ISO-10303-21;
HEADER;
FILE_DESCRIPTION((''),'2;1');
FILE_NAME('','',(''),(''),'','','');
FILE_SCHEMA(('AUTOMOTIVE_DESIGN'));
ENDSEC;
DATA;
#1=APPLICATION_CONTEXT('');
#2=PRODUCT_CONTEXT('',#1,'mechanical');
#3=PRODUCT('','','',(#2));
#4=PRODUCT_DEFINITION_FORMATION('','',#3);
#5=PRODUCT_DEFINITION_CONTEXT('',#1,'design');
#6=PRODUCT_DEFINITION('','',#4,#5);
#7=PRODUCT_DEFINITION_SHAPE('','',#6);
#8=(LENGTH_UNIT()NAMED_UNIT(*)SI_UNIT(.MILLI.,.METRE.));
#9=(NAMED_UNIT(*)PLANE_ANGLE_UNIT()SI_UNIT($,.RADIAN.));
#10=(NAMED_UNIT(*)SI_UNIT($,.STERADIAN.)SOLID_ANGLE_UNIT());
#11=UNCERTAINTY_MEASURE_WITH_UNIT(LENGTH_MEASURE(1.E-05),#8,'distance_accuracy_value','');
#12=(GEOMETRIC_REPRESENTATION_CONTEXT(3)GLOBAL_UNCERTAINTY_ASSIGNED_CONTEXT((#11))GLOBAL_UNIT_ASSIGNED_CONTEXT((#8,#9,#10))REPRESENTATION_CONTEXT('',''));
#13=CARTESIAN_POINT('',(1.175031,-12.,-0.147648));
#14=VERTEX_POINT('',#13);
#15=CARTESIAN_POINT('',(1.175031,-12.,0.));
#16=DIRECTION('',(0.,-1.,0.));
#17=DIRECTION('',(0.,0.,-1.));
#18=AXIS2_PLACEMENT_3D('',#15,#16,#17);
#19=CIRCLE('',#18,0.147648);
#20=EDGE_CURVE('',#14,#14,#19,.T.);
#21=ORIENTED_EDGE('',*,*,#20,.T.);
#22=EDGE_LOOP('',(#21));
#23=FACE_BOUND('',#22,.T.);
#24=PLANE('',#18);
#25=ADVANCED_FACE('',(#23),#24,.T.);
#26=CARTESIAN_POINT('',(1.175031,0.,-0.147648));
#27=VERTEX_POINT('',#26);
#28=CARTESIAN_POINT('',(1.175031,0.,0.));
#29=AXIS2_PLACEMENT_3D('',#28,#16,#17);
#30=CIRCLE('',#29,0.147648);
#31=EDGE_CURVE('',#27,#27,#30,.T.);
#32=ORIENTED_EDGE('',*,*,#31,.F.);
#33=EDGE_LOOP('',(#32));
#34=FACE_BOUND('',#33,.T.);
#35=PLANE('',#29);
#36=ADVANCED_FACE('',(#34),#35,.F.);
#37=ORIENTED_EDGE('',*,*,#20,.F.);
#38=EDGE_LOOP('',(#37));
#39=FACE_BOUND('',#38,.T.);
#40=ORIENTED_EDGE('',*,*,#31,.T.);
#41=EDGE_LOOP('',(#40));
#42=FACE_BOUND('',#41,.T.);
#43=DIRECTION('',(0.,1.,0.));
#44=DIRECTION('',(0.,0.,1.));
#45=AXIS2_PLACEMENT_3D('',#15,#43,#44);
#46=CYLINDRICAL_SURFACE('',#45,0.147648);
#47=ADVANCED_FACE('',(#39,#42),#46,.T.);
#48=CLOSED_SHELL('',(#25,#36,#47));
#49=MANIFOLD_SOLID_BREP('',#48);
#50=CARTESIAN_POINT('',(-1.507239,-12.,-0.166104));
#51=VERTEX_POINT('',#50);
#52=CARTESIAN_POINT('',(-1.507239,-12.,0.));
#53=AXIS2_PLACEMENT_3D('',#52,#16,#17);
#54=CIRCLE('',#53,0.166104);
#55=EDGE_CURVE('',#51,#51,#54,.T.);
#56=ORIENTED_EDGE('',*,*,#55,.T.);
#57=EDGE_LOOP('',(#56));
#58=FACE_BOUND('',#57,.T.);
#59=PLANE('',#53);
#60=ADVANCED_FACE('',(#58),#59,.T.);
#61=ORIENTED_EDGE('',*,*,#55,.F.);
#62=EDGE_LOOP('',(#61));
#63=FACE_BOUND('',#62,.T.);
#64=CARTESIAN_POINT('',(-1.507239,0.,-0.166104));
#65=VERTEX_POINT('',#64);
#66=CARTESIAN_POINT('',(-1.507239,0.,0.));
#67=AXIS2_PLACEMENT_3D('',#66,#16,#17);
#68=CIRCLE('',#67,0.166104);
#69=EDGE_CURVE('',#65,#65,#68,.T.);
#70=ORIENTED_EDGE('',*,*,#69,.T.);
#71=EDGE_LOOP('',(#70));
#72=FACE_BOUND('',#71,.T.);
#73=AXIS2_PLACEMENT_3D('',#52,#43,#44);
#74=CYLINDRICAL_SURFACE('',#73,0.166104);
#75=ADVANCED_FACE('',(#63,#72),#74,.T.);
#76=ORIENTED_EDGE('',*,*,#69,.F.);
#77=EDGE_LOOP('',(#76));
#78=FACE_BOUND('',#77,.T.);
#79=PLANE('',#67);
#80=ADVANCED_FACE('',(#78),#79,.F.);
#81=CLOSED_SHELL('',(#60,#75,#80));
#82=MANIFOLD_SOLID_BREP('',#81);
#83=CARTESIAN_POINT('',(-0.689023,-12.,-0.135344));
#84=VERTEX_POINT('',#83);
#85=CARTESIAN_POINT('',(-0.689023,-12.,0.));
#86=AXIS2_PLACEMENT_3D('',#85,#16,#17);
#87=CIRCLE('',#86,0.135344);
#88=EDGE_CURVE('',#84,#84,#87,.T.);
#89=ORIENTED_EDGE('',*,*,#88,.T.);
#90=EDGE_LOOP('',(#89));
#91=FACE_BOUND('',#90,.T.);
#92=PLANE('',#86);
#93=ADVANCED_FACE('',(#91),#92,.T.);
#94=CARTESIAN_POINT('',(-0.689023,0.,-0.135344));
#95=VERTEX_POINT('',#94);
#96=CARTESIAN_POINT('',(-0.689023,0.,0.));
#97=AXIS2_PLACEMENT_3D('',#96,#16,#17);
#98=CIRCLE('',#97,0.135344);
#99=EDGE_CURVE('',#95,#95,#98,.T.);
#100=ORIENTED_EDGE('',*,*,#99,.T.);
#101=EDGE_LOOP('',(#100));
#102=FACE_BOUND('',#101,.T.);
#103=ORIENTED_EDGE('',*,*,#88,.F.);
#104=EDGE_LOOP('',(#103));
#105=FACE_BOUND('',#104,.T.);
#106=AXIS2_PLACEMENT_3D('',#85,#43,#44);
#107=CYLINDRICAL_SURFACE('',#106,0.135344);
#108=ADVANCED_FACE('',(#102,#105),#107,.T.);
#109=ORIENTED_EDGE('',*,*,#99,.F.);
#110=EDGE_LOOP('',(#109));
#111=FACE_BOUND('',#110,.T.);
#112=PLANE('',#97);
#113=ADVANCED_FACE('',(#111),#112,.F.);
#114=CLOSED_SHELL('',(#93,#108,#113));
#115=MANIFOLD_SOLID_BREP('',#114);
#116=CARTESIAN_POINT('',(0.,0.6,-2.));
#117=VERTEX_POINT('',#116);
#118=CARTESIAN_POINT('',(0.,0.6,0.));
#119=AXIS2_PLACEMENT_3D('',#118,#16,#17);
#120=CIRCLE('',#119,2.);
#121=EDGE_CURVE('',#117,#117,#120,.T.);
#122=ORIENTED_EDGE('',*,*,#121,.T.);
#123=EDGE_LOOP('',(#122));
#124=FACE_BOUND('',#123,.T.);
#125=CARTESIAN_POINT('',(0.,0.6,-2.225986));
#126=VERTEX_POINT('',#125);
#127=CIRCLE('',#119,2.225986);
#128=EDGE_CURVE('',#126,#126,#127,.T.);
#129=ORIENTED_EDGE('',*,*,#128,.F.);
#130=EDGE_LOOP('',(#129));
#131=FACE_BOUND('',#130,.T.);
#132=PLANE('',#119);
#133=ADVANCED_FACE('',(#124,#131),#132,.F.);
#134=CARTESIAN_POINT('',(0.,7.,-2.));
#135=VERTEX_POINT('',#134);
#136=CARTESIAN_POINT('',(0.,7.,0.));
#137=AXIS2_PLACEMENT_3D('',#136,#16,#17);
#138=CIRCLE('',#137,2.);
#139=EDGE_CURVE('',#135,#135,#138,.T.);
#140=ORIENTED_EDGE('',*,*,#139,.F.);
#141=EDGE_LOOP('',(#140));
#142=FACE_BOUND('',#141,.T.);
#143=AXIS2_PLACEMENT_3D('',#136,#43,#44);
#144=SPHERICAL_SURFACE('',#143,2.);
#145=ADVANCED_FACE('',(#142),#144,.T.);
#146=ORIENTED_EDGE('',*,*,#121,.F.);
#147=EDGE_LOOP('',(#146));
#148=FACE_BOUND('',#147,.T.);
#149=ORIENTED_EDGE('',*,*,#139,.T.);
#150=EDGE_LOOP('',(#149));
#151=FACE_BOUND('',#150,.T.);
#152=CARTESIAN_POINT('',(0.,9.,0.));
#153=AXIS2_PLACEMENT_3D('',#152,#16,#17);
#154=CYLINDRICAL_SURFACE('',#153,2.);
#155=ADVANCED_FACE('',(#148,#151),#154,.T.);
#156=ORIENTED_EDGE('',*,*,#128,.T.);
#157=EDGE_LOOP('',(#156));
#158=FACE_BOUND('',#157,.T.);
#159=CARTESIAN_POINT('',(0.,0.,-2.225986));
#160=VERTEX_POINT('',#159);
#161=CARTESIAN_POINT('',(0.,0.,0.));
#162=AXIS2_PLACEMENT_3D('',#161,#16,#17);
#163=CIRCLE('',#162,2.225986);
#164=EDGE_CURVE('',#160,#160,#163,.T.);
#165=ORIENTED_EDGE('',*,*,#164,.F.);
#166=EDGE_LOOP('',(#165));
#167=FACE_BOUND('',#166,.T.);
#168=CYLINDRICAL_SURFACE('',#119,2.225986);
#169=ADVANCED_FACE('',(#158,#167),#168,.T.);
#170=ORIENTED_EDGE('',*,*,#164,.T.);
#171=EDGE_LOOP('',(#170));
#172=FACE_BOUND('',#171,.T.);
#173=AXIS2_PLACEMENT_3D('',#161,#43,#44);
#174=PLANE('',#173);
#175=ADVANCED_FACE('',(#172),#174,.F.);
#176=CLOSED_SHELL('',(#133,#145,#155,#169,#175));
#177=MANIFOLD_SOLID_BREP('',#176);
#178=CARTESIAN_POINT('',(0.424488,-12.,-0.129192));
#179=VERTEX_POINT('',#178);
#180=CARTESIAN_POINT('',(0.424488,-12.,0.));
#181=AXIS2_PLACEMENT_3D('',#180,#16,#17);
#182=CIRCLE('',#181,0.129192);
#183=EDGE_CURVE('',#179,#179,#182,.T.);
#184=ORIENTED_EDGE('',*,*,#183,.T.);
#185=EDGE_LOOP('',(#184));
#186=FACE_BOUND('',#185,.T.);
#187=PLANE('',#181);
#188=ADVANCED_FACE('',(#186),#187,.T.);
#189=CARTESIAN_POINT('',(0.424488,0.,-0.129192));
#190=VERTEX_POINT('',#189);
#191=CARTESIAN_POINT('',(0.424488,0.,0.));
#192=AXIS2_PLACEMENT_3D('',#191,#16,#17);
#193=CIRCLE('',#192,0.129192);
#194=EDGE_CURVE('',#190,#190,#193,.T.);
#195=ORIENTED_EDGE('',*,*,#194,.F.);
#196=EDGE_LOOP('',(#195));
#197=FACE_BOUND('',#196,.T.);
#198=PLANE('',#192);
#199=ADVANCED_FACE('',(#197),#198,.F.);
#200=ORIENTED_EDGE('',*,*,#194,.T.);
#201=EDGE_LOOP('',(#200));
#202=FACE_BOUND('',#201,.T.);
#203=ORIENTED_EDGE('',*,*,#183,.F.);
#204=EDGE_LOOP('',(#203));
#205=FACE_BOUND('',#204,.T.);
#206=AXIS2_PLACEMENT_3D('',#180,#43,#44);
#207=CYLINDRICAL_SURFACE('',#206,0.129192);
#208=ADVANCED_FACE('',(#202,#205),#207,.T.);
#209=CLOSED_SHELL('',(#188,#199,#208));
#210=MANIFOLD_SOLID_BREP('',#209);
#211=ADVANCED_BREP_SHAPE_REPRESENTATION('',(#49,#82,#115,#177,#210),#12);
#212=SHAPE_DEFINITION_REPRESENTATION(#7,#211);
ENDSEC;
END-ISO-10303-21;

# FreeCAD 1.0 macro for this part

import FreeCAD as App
import Part
import Sketcher

V = App.Vector


def edges_at(feature, points):
    """Names of the edges that pass closest to the given points."""
    edges = feature.Shape.Edges
    near = lambda p: min(range(len(edges)), key=lambda i: edges[i].distToShape(Part.Vertex(*p))[0])
    return sorted({f"Edge{near(p) + 1}" for p in points})

doc = App.newDocument("Part")
body = doc.addObject("PartDesign::Body", "Body")

sketch1 = body.newObject("Sketcher::SketchObject", "Sketch")
sketch1.AttachmentSupport = (doc.getObject("XZ_Plane"), [""])
sketch1.MapMode = "FlatFace"
sketch1.addGeometry(Part.Circle(V(0, 0, 0), V(0, 0, 1), 2), False)
sketch1.addConstraint([
    Sketcher.Constraint("Coincident", 0, 3, -1, 1),
    Sketcher.Constraint("Diameter", 0, 4.0),
])
pad1 = body.newObject("PartDesign::Pad", "Pad")
pad1.Profile = sketch1
pad1.Length = 9
pad1.Reversed = True
doc.recompute()

fillet = body.newObject("PartDesign::Fillet", "Fillet")
fillet.Base = (pad1, edges_at(pad1, [(0, 9, -2)]))
fillet.Radius = 2

sketch2 = body.newObject("Sketcher::SketchObject", "Sketch001")
sketch2.AttachmentSupport = (doc.getObject("XZ_Plane"), [""])
sketch2.MapMode = "FlatFace"
sketch2.addGeometry([
    Part.Circle(V(0, 0, 0), V(0, 0, 1), 2.2),
    Part.Circle(V(0, 0, 0), V(0, 0, 1), 2),
], False)
sketch2.addConstraint([
    Sketcher.Constraint("Coincident", 0, 3, -1, 1),
    Sketcher.Constraint("Coincident", 1, 3, -1, 1),
    Sketcher.Constraint("Diameter", 1, 4.0),
    Sketcher.Constraint("Diameter", 0, 4.451972),
])
pad2 = body.newObject("PartDesign::Pad", "Pad001")
pad2.Profile = sketch2
pad2.Length = 0.6
pad2.Reversed = True
body2 = doc.addObject("PartDesign::Body", "Body001")

sketch3 = body2.newObject("Sketcher::SketchObject", "Sketch002")
sketch3.AttachmentSupport = (doc.getObject("XZ_Plane001"), [""])
sketch3.MapMode = "FlatFace"
sketch3.addGeometry(Part.Circle(V(-0.69, 0, 0), V(0, 0, 1), 0.14), False)
sketch3.addConstraint([
    Sketcher.Constraint("PointOnObject", 0, 3, -1),
    Sketcher.Constraint("Diameter", 0, 0.270688),
    Sketcher.Constraint("DistanceX", 0, 3, -1, 1, 0.689023),
])
pad3 = body2.newObject("PartDesign::Pad", "Pad002")
pad3.Profile = sketch3
pad3.Length = 12
body3 = doc.addObject("PartDesign::Body", "Body002")

sketch4 = body3.newObject("Sketcher::SketchObject", "Sketch003")
sketch4.AttachmentSupport = (doc.getObject("XZ_Plane002"), [""])
sketch4.MapMode = "FlatFace"
sketch4.addGeometry(Part.Circle(V(-1.51, 0, 0), V(0, 0, 1), 0.17), False)
sketch4.addConstraint([
    Sketcher.Constraint("PointOnObject", 0, 3, -1),
    Sketcher.Constraint("Diameter", 0, 0.332208),
    Sketcher.Constraint("DistanceX", 0, 3, -1, 1, 1.507239),
])
pad4 = body3.newObject("PartDesign::Pad", "Pad003")
pad4.Profile = sketch4
pad4.Length = 12
body4 = doc.addObject("PartDesign::Body", "Body003")

sketch5 = body4.newObject("Sketcher::SketchObject", "Sketch004")
sketch5.AttachmentSupport = (doc.getObject("XZ_Plane003"), [""])
sketch5.MapMode = "FlatFace"
sketch5.addGeometry(Part.Circle(V(0.42, 0, 0), V(0, 0, 1), 0.13), False)
sketch5.addConstraint([
    Sketcher.Constraint("PointOnObject", 0, 3, -1),
    Sketcher.Constraint("Diameter", 0, 0.258384),
    Sketcher.Constraint("DistanceX", -1, 1, 0, 3, 0.424488),
])
pad5 = body4.newObject("PartDesign::Pad", "Pad004")
pad5.Profile = sketch5
pad5.Length = 12
body5 = doc.addObject("PartDesign::Body", "Body004")

sketch6 = body5.newObject("Sketcher::SketchObject", "Sketch005")
sketch6.AttachmentSupport = (doc.getObject("XZ_Plane004"), [""])
sketch6.MapMode = "FlatFace"
sketch6.addGeometry(Part.Circle(V(1.18, 0, 0), V(0, 0, 1), 0.15), False)
sketch6.addConstraint([
    Sketcher.Constraint("PointOnObject", 0, 3, -1),
    Sketcher.Constraint("Diameter", 0, 0.295296),
    Sketcher.Constraint("DistanceX", -1, 1, 0, 3, 1.175031),
])
pad6 = body5.newObject("PartDesign::Pad", "Pad005")
pad6.Profile = sketch6
pad6.Length = 12

doc.recompute()
